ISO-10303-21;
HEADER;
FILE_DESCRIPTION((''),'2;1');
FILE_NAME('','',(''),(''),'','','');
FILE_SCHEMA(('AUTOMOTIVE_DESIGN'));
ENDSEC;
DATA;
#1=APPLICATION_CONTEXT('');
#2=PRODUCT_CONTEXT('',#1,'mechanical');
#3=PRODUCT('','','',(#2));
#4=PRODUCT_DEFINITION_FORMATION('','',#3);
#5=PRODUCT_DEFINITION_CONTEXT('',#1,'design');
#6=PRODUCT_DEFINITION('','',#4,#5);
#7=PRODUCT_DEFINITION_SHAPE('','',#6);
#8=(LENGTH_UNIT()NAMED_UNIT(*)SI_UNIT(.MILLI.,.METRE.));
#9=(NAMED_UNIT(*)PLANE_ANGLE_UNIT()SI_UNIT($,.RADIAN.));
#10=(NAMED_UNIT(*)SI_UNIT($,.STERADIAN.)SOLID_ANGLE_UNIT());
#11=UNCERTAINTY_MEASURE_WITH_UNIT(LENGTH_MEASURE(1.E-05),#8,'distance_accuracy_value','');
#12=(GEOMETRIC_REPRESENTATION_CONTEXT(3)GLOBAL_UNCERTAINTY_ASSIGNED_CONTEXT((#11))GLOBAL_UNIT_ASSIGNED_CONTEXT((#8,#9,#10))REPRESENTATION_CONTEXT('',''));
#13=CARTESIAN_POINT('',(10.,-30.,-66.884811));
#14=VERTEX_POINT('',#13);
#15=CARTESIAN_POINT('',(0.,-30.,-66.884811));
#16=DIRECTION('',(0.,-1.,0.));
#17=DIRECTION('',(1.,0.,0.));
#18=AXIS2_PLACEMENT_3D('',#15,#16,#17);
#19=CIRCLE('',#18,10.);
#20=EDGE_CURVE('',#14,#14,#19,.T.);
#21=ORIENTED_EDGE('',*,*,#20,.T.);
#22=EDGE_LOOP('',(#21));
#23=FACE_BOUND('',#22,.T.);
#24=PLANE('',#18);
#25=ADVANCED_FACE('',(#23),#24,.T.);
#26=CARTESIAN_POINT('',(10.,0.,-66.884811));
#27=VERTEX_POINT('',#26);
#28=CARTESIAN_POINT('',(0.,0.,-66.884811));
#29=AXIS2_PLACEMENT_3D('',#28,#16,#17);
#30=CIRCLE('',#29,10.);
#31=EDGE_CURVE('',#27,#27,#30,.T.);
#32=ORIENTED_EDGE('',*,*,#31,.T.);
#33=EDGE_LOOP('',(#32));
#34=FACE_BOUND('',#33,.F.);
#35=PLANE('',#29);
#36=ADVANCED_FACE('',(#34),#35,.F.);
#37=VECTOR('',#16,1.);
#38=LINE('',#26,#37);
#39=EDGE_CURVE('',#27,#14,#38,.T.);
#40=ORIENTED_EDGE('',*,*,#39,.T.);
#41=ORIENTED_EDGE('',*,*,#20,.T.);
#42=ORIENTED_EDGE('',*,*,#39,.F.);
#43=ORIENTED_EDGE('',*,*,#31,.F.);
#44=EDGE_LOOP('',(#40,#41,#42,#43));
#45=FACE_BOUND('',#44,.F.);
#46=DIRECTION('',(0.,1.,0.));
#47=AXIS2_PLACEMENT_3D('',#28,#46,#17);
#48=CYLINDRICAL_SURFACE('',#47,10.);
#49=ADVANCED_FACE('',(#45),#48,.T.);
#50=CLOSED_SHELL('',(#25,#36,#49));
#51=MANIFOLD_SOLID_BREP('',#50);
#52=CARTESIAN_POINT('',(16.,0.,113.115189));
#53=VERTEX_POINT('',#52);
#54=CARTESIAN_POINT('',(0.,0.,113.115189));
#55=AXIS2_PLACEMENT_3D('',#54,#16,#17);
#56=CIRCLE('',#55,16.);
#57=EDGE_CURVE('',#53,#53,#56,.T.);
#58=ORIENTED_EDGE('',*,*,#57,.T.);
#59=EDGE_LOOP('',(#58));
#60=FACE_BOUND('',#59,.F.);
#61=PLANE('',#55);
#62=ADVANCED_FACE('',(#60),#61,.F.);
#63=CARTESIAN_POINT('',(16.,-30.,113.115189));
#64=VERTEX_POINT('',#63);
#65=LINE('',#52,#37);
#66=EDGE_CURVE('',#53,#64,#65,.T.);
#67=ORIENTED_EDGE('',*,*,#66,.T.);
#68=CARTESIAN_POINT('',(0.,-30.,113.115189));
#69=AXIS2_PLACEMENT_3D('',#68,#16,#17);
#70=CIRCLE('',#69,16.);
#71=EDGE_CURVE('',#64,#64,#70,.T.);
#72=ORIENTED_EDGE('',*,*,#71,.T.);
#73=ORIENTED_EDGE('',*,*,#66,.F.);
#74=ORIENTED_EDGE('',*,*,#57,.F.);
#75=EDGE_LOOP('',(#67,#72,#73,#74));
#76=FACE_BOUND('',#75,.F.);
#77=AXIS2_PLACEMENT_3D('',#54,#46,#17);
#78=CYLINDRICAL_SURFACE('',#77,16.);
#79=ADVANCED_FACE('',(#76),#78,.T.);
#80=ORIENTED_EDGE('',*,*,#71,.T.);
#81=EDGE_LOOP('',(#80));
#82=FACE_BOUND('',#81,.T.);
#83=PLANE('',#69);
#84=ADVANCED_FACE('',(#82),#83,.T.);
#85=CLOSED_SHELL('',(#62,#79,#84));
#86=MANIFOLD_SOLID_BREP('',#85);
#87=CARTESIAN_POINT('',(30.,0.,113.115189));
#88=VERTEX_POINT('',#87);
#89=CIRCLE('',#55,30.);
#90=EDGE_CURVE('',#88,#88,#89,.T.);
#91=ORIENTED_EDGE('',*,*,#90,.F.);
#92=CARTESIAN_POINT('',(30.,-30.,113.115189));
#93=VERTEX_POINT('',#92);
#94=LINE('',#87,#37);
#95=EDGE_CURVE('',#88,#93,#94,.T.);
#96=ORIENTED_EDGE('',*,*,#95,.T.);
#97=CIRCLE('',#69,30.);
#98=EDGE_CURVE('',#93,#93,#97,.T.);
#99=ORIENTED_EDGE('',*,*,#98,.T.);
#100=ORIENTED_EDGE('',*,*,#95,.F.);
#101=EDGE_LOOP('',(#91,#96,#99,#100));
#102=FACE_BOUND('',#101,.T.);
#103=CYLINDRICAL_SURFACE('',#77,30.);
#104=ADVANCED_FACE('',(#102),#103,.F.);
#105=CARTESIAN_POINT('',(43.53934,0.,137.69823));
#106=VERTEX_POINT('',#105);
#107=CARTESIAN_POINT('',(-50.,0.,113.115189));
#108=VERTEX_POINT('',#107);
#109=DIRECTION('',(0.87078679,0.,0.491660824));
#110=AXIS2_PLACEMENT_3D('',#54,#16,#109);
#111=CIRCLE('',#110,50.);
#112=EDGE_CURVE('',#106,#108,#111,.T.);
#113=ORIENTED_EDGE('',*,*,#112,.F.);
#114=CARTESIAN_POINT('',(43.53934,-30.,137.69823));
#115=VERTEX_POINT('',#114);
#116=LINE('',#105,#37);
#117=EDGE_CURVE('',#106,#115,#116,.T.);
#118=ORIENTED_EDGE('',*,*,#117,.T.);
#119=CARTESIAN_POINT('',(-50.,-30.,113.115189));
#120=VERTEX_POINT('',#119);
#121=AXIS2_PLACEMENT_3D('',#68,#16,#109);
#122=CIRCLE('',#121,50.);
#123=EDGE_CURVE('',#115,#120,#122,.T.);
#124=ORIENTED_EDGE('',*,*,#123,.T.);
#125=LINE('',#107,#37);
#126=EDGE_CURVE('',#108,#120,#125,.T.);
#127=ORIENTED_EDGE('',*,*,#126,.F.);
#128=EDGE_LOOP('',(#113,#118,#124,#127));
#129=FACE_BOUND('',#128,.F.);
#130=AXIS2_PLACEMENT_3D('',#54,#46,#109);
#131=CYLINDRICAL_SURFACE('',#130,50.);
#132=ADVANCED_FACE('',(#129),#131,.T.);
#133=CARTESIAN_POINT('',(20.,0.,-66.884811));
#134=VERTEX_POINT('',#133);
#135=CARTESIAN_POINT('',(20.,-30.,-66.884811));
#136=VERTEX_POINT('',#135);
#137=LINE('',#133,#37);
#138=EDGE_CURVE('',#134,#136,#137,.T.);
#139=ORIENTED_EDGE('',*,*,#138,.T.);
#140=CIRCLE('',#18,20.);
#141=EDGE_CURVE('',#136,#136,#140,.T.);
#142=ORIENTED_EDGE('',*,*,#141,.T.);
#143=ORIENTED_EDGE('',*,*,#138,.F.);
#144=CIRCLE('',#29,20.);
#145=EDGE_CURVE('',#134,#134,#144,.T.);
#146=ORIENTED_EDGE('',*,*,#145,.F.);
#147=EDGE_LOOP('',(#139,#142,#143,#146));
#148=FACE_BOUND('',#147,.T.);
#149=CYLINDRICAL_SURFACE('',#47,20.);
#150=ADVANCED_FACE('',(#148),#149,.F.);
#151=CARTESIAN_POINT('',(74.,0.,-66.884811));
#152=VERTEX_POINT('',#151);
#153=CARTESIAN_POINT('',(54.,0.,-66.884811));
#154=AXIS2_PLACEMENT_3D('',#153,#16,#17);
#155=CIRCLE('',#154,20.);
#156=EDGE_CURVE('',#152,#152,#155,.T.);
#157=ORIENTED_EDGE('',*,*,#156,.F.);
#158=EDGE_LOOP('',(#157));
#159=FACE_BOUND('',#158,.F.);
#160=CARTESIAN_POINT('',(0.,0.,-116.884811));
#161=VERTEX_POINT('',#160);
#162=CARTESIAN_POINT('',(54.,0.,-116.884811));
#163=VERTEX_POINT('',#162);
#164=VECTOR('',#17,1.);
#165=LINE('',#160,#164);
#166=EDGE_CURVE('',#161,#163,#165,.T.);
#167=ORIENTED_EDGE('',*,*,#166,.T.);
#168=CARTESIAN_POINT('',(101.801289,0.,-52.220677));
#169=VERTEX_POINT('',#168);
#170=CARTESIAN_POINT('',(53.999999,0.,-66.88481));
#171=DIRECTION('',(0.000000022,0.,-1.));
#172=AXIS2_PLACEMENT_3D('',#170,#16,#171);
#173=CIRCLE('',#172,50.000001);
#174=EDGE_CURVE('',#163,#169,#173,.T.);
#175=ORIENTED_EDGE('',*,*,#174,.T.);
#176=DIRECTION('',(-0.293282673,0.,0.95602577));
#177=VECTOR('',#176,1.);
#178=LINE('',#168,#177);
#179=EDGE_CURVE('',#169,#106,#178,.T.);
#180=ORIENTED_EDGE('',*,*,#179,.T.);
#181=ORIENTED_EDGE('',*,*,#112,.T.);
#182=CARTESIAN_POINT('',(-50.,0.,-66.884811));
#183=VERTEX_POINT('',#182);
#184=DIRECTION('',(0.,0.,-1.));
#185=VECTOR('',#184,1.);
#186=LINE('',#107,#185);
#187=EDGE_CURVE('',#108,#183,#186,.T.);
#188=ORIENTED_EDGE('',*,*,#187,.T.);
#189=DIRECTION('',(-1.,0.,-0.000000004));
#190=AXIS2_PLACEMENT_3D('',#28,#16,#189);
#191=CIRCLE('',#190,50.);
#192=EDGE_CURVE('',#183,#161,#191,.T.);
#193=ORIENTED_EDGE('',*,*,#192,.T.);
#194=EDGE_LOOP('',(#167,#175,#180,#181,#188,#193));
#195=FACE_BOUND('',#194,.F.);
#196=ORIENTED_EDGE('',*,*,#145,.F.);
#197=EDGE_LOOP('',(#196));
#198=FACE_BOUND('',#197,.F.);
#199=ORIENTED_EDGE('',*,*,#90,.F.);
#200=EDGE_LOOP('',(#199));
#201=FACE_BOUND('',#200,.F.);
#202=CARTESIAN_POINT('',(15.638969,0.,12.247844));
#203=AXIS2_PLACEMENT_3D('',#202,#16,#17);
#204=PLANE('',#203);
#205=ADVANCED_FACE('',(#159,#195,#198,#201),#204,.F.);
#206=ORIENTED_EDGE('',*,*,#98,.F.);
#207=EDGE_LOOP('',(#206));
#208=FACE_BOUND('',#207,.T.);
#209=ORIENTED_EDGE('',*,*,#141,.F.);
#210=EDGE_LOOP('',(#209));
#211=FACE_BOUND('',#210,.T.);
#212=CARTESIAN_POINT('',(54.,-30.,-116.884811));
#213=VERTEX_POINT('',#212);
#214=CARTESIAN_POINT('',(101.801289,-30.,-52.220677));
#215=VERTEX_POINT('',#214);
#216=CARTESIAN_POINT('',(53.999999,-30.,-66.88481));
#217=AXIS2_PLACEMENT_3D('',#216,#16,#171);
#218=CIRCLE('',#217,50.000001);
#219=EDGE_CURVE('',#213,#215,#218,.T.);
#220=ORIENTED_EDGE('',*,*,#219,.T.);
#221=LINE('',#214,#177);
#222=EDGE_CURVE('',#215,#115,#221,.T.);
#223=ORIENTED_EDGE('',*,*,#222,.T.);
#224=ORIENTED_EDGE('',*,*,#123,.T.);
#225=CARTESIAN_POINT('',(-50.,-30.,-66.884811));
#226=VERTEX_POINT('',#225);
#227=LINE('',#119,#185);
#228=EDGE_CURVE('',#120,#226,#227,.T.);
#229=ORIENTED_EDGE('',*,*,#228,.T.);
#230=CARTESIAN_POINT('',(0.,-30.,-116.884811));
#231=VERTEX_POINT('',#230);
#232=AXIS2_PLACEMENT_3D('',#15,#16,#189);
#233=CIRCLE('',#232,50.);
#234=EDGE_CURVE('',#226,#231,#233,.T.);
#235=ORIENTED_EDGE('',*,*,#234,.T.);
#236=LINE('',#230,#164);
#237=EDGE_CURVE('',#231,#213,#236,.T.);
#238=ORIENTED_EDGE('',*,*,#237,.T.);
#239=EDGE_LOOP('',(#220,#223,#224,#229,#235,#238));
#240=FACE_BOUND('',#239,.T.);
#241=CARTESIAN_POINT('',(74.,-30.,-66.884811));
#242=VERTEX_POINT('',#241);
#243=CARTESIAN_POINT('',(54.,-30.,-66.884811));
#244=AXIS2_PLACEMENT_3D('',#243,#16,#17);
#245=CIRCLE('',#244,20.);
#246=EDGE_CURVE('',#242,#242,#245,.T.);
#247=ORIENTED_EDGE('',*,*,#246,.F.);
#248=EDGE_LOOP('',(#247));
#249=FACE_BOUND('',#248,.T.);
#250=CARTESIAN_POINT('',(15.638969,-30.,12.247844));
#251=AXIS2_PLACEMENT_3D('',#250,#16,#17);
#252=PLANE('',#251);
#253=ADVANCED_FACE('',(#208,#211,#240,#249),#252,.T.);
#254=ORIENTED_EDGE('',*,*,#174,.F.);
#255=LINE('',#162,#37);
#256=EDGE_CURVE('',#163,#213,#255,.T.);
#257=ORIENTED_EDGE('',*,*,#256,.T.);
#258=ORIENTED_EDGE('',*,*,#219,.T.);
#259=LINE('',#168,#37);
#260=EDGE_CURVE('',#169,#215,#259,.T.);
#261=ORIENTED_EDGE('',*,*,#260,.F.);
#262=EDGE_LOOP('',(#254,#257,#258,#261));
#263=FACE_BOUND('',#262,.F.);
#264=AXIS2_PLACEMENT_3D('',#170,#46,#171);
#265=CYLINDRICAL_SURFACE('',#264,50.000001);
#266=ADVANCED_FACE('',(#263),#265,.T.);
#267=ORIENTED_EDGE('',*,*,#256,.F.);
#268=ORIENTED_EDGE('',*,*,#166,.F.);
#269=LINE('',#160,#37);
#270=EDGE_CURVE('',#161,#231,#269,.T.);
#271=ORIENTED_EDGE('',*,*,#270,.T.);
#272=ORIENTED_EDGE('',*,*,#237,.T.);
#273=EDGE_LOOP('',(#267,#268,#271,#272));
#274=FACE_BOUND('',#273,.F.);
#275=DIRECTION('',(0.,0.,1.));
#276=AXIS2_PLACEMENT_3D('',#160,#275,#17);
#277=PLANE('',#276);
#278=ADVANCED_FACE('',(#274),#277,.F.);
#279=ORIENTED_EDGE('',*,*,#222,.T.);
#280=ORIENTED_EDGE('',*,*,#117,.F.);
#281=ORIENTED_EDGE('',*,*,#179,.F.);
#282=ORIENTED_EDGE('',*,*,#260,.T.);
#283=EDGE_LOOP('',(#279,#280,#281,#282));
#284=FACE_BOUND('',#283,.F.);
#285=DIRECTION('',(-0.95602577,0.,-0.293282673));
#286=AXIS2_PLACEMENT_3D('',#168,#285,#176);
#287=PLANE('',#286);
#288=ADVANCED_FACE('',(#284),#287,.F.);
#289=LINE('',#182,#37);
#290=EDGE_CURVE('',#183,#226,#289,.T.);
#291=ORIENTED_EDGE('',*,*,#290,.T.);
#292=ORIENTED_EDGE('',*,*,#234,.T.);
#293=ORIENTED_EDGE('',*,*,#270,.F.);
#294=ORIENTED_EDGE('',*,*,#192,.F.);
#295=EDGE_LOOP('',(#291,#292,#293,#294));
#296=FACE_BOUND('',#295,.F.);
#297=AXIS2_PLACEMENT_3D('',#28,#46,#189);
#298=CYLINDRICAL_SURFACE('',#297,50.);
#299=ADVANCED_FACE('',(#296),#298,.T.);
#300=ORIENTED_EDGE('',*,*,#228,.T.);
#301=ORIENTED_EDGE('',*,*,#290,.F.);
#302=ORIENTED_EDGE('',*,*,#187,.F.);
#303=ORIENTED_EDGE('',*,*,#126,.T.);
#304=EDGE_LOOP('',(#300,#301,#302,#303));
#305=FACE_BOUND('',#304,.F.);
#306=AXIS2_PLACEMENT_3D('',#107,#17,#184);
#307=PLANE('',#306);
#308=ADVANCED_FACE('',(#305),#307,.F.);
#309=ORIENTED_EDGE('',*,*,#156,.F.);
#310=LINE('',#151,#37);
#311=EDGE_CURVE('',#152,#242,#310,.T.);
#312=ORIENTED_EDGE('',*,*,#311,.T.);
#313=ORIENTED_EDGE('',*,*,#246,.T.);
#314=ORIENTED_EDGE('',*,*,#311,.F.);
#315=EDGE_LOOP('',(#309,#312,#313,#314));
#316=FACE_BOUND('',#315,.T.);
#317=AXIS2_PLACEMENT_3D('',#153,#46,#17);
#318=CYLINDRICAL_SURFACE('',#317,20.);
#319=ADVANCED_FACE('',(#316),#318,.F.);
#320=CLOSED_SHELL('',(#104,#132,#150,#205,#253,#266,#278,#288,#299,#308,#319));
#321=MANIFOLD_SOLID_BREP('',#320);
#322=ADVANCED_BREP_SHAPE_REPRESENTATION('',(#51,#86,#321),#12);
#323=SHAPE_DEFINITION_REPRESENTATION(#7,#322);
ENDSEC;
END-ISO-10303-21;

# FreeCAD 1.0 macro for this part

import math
import FreeCAD as App
import Part
import Sketcher
from FreeCAD import Vector
Q = App.Units.Quantity

doc = App.newDocument("Part")
body = doc.addObject("PartDesign::Body", "Body")
body.AllowCompound = True

# Sketch on XZ plane
sketch1 = doc.addObject("Sketcher::SketchObject", "Sketch")
body.addObject(sketch1)
sketch1.AttachmentSupport = (doc.XZ_Plane, [""])
sketch1.MapMode = "FlatFace"
sketch1.addGeometry([
    Part.LineSegment(Vector(-50, 113, 0), Vector(-50, -67, 0)),  # 0
    Part.ArcOfCircle(Part.Circle(Vector(0, -67, 0), Vector(0, 0, 1), 50), math.radians(-180), math.radians(-90)),  # 1
    Part.LineSegment(Vector(0, -117, 0), Vector(54, -117, 0)),  # 2
    Part.ArcOfCircle(Part.Circle(Vector(54, -67, 0), Vector(0, 0, 1), 50), math.radians(-90), math.radians(17)),  # 3
    Part.LineSegment(Vector(102, -52, 0), Vector(44, 138, 0)),  # 4
    Part.ArcOfCircle(Part.Circle(Vector(0, 113, 0), Vector(0, 0, 1), 50), math.radians(29), math.radians(180)),  # 5
    Part.Circle(Vector(0, -67, 0), Vector(0, 0, 1), 20),  # 6
    Part.Circle(Vector(54, -67, 0), Vector(0, 0, 1), 20),  # 7
    Part.Circle(Vector(0, 113, 0), Vector(0, 0, 1), 30),  # 8
    Part.Circle(Vector(0, -67, 0), Vector(0, 0, 1), 10),  # 9
    Part.Circle(Vector(0, 113, 0), Vector(0, 0, 1), 16),  # 10
], False)
sketch1.addConstraint([
    Sketcher.Constraint("Tangent", 0, 2, 1, 1),
    Sketcher.Constraint("Tangent", 1, 2, 2, 1),
    Sketcher.Constraint("Tangent", 2, 2, 3, 1),
    Sketcher.Constraint("Tangent", 3, 2, 4, 1),
    Sketcher.Constraint("Coincident", 4, 2, 5, 1),
    Sketcher.Constraint("Tangent", 5, 2, 0, 1),
    Sketcher.Constraint("Vertical", 0),
    Sketcher.Constraint("Horizontal", 2),
    Sketcher.Constraint("Coincident", 6, 3, 1, 3),
    Sketcher.Constraint("Coincident", 7, 3, 3, 3),
    Sketcher.Constraint("Coincident", 8, 3, 5, 3),
    Sketcher.Constraint("Coincident", 9, 3, 1, 3),
    Sketcher.Constraint("Coincident", 10, 3, 5, 3),
    Sketcher.Constraint("Equal", 1, 3),
    Sketcher.Constraint("Equal", 3, 5),
    Sketcher.Constraint("Equal", 6, 7),
    Sketcher.Constraint("PointOnObject", 1, 3, -2),
    Sketcher.Constraint("Diameter", 6, Q("40 mm")),
    Sketcher.Constraint("Diameter", 8, Q("60 mm")),
    Sketcher.Constraint("Diameter", 9, Q("20 mm")),
    Sketcher.Constraint("Diameter", 10, Q("32 mm")),
    Sketcher.Constraint("Radius", 1, Q("50 mm")),
    Sketcher.Constraint("DistanceX", 2, 1, 2, 2, Q("54 mm")),
    Sketcher.Constraint("DistanceY", 0, 2, 0, 1, Q("180 mm")),
    Sketcher.Constraint("Distance", 4, Q("198.65459 mm")),
    Sketcher.Constraint("DistanceY", 1, 3, -1, 1, Q("66.884811 mm")),
])
pad1 = doc.addObject("PartDesign::Pad", "Pad")
body.addObject(pad1)
pad1.Profile = sketch1
pad1.Length = 30

doc.recompute()
